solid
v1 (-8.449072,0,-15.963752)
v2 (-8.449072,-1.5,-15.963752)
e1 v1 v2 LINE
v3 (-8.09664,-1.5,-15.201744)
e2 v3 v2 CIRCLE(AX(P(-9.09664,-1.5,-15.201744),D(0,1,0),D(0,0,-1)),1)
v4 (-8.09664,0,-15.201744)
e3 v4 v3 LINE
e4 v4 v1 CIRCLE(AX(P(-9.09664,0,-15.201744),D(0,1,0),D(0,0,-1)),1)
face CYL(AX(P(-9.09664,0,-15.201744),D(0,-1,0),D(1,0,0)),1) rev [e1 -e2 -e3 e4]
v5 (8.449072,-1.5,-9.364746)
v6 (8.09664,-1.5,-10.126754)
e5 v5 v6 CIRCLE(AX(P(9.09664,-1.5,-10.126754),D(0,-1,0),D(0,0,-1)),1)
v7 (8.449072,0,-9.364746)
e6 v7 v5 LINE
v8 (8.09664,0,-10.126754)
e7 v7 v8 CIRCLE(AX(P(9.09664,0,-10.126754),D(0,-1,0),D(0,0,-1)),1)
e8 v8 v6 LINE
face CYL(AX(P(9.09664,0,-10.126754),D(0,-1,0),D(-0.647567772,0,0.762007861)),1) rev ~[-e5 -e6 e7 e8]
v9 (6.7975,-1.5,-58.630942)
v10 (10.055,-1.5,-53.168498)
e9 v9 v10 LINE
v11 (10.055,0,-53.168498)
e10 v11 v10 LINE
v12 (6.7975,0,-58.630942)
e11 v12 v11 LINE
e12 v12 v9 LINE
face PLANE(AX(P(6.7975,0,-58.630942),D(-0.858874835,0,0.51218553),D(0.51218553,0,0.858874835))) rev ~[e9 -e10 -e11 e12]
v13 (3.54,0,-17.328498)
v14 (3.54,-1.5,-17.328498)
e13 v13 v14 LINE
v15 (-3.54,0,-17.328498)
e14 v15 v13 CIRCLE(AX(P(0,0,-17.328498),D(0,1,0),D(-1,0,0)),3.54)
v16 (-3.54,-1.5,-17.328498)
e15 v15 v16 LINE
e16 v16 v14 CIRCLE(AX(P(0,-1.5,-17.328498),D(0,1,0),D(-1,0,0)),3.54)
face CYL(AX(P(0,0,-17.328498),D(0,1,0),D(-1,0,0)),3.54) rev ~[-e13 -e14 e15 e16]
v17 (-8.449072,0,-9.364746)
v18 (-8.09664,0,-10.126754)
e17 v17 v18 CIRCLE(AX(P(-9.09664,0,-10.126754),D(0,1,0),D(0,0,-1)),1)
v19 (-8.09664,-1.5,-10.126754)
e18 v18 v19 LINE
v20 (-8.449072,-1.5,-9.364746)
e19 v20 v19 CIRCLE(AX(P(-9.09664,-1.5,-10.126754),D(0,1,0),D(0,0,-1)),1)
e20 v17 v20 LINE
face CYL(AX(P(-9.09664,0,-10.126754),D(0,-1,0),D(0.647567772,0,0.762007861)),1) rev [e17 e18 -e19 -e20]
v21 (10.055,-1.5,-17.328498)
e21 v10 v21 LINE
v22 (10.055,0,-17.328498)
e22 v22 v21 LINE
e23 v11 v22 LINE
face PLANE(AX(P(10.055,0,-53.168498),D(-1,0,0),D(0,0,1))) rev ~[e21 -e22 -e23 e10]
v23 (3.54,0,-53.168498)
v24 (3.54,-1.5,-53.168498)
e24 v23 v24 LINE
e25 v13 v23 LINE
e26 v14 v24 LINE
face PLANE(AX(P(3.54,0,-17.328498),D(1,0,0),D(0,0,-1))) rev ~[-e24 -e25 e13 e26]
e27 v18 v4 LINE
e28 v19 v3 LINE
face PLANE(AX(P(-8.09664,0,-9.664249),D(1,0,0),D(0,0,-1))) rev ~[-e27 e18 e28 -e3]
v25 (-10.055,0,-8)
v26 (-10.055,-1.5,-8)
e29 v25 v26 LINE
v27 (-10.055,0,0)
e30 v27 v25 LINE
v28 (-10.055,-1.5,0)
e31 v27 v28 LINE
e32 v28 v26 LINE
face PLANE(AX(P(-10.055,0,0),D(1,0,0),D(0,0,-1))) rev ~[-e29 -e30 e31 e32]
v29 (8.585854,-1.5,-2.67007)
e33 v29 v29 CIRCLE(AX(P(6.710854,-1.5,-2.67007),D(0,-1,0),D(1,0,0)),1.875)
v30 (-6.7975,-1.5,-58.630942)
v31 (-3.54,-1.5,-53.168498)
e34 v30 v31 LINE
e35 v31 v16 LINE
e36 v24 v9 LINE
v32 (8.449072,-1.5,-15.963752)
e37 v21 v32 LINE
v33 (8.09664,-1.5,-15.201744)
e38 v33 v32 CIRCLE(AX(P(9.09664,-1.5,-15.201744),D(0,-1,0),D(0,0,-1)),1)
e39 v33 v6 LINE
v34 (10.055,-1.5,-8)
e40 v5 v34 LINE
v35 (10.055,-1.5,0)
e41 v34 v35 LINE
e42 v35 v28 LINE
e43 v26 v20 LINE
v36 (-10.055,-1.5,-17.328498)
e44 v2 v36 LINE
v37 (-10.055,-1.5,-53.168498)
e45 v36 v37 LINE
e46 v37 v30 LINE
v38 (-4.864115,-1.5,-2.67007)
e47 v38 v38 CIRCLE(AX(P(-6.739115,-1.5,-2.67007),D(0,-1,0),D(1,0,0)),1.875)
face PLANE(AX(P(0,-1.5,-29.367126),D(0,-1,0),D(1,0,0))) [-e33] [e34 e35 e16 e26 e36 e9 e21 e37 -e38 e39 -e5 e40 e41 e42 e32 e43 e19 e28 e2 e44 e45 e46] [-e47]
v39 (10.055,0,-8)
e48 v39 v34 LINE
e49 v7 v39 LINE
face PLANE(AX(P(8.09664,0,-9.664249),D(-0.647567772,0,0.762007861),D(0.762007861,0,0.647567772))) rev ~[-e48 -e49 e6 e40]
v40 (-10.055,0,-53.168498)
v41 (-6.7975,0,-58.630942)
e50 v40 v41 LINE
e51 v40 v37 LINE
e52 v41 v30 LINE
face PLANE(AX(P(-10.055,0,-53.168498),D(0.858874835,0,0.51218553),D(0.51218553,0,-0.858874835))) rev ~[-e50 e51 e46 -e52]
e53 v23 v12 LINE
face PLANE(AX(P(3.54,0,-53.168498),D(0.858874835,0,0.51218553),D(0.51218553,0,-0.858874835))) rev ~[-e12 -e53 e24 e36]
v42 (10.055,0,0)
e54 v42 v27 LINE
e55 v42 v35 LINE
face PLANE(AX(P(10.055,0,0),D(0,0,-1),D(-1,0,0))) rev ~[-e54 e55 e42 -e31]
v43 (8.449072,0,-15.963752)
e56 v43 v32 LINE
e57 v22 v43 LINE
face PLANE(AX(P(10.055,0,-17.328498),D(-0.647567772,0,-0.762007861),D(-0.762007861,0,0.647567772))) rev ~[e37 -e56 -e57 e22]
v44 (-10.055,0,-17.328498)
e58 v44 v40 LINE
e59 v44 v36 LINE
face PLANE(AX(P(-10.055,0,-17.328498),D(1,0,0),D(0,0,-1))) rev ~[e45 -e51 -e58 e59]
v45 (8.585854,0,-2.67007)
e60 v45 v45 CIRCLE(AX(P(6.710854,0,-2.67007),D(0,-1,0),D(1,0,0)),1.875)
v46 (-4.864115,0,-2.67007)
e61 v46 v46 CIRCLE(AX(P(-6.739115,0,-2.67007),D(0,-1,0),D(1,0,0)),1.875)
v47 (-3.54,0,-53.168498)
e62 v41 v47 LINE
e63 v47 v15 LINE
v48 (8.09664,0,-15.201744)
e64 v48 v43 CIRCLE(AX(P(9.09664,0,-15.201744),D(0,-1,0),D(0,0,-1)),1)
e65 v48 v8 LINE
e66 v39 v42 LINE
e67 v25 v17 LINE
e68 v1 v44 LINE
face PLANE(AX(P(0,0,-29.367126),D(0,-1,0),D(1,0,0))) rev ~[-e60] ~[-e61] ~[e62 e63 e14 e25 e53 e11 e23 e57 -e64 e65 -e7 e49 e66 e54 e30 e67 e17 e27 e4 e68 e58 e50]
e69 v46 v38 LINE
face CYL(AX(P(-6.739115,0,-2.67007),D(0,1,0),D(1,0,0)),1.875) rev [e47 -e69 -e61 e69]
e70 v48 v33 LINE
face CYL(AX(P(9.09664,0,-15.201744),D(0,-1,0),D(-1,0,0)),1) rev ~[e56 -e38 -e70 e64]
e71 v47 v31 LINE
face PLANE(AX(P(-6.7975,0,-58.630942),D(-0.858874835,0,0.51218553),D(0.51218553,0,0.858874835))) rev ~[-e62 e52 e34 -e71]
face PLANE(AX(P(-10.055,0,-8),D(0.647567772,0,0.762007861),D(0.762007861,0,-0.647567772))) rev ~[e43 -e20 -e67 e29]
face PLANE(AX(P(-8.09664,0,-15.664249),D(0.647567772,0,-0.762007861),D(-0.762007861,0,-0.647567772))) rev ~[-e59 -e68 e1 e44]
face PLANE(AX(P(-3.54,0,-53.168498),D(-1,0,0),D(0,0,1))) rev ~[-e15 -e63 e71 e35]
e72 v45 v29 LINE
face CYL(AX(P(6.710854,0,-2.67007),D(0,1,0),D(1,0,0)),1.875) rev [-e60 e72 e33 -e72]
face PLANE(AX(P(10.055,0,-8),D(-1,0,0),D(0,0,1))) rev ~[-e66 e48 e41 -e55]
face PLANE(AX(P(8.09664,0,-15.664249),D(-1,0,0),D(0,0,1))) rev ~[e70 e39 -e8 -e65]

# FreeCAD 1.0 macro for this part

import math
import FreeCAD as App
import Part
import Sketcher
from FreeCAD import Vector
Q = App.Units.Quantity


def edges_at(feature, points):
    """Names of the edges that pass closest to the given points."""
    edges = feature.Shape.Edges
    near = lambda p: min(range(len(edges)), key=lambda i: edges[i].distToShape(Part.Vertex(*p))[0])
    return sorted({f"Edge{near(p) + 1}" for p in points})

doc = App.newDocument("Part")
params = doc.addObject("Spreadsheet::Sheet", "Params")
for row, (alias, value) in enumerate([
    ("sketch1_diameter", "3.75 mm"),
    ("sketch1_height", "8 mm"),
    ("sketch1_height2", "6 mm"),
    ("sketch1_radius", "3.54 mm"),
    ("sketch1_width", "20.11 mm"),
    ("pad1_length", "1.5 mm"),
    ("fillet_radius", "1 mm"),
], start=1):
    params.set(f"A{row}", alias)
    params.set(f"B{row}", "=" + value)
    params.setAlias(f"B{row}", alias)

body = doc.addObject("PartDesign::Body", "Body")

# Sketch on XZ plane
sketch1 = doc.addObject("Sketcher::SketchObject", "Sketch")
body.addObject(sketch1)
sketch1.AttachmentSupport = (doc.XZ_Plane, [""])
sketch1.MapMode = "FlatFace"
sketch1.addGeometry([
    Part.LineSegment(Vector(10.1, 0, 0), Vector(-10.1, 0, 0)),  # 0
    Part.LineSegment(Vector(-10.1, 0, 0), Vector(-10.1, -8, 0)),  # 1
    Part.LineSegment(Vector(-10.1, -8, 0), Vector(-8.1, -9.7, 0)),  # 2
    Part.LineSegment(Vector(-8.1, -9.7, 0), Vector(-8.1, -15.7, 0)),  # 3
    Part.LineSegment(Vector(-8.1, -15.7, 0), Vector(-10.1, -17.3, 0)),  # 4
    Part.LineSegment(Vector(-10.1, -17.3, 0), Vector(-10.1, -53.2, 0)),  # 5
    Part.LineSegment(Vector(-10.1, -53.2, 0), Vector(-6.8, -58.6, 0)),  # 6
    Part.LineSegment(Vector(-6.8, -58.6, 0), Vector(-3.5, -53.2, 0)),  # 7
    Part.LineSegment(Vector(-3.5, -53.2, 0), Vector(-3.5, -17.3, 0)),  # 8
    Part.ArcOfCircle(Part.Circle(Vector(0, -17.3, 0), Vector(0, 0, 1), 3.5), math.radians(0), math.radians(180)),  # 9
    Part.LineSegment(Vector(3.5, -17.3, 0), Vector(3.5, -53.2, 0)),  # 10
    Part.LineSegment(Vector(3.5, -53.2, 0), Vector(6.8, -58.6, 0)),  # 11
    Part.LineSegment(Vector(6.8, -58.6, 0), Vector(10.1, -53.2, 0)),  # 12
    Part.LineSegment(Vector(10.1, -53.2, 0), Vector(10.1, -17.3, 0)),  # 13
    Part.LineSegment(Vector(10.1, -17.3, 0), Vector(8.1, -15.7, 0)),  # 14
    Part.LineSegment(Vector(8.1, -15.7, 0), Vector(8.1, -9.7, 0)),  # 15
    Part.LineSegment(Vector(8.1, -9.7, 0), Vector(10.1, -8, 0)),  # 16
    Part.LineSegment(Vector(10.1, -8, 0), Vector(10.1, 0, 0)),  # 17
    Part.Circle(Vector(-6.7, -2.7, 0), Vector(0, 0, 1), 1.9),  # 18
    Part.Circle(Vector(6.7, -2.7, 0), Vector(0, 0, 1), 1.9),  # 19
], False)
sketch1.addConstraint([
    Sketcher.Constraint("Coincident", 0, 2, 1, 1),
    Sketcher.Constraint("Coincident", 1, 2, 2, 1),
    Sketcher.Constraint("Coincident", 2, 2, 3, 1),
    Sketcher.Constraint("Coincident", 3, 2, 4, 1),
    Sketcher.Constraint("Coincident", 4, 2, 5, 1),
    Sketcher.Constraint("Coincident", 5, 2, 6, 1),
    Sketcher.Constraint("Coincident", 6, 2, 7, 1),
    Sketcher.Constraint("Coincident", 7, 2, 8, 1),
    Sketcher.Constraint("Tangent", 8, 2, 9, 2),
    Sketcher.Constraint("Tangent", 9, 1, 10, 1),
    Sketcher.Constraint("Coincident", 10, 2, 11, 1),
    Sketcher.Constraint("Coincident", 11, 2, 12, 1),
    Sketcher.Constraint("Coincident", 12, 2, 13, 1),
    Sketcher.Constraint("Coincident", 13, 2, 14, 1),
    Sketcher.Constraint("Coincident", 14, 2, 15, 1),
    Sketcher.Constraint("Coincident", 15, 2, 16, 1),
    Sketcher.Constraint("Coincident", 16, 2, 17, 1),
    Sketcher.Constraint("Coincident", 17, 2, 0, 1),
    Sketcher.Constraint("Horizontal", 0),
    Sketcher.Constraint("Vertical", 1),
    Sketcher.Constraint("Vertical", 3),
    Sketcher.Constraint("Vertical", 5),
    Sketcher.Constraint("Vertical", 8),
    Sketcher.Constraint("Vertical", 10),
    Sketcher.Constraint("Vertical", 13),
    Sketcher.Constraint("Vertical", 15),
    Sketcher.Constraint("Vertical", 17),
    Sketcher.Constraint("Equal", 18, 19),
    Sketcher.Constraint("Symmetric", 0, 2, 17, 2, -1, 1),
    Sketcher.Constraint("Symmetric", 7, 2, 10, 2, -2),
    Sketcher.Constraint("Symmetric", 6, 2, 11, 2, -2),
    Sketcher.Constraint("Symmetric", 5, 2, 12, 2, -2),
    Sketcher.Constraint("Symmetric", 3, 2, 14, 2, -2),
    Sketcher.Constraint("Parallel", 6, 11),
    Sketcher.Constraint("Parallel", 2, 14),
    Sketcher.Constraint("Parallel", 4, 16),
    Sketcher.Constraint("Horizontal", 18, 3, 19, 3),
    Sketcher.Constraint("Horizontal", 9, 3, 4, 2),
    Sketcher.Constraint("Horizontal", 5, 2, 7, 2),
    Sketcher.Constraint("Horizontal", 9, 1, 13, 2),
    Sketcher.Constraint("Horizontal", 2, 2, 15, 2),
    Sketcher.Constraint("Vertical", 1, 2, 4, 2),
    Sketcher.Constraint("Diameter", 18, Q("3.75 mm")),
    Sketcher.Constraint("DistanceY", 1, 2, 1, 1, Q("8 mm")),
    Sketcher.Constraint("DistanceY", 3, 2, 3, 1, Q("6 mm")),
    Sketcher.Constraint("Radius", 9, Q("3.54 mm")),
    Sketcher.Constraint("DistanceX", 0, 2, 0, 1, Q("20.11 mm")),
    Sketcher.Constraint("DistanceY", 5, 2, 5, 1, Q("35.84 mm")),
    Sketcher.Constraint("Distance", 2, Q("2.57 mm")),
    Sketcher.Constraint("Distance", 6, Q("6.36 mm")),
    Sketcher.Constraint("DistanceY", 9, 3, -1, 1, Q("17.328498 mm")),
    Sketcher.Constraint("DistanceY", 18, 3, -1, 1, Q("2.67007 mm")),
    Sketcher.Constraint("DistanceX", 18, 3, 19, 3, Q("13.449969 mm")),
    Sketcher.Constraint("DistanceX", 18, 3, -1, 1, Q("6.739115 mm")),
])
sketch1.setExpression("Constraints[42]", "Params.sketch1_diameter")
sketch1.setExpression("Constraints[43]", "Params.sketch1_height")
sketch1.setExpression("Constraints[44]", "Params.sketch1_height2")
sketch1.setExpression("Constraints[45]", "Params.sketch1_radius")
sketch1.setExpression("Constraints[46]", "Params.sketch1_width")
pad1 = doc.addObject("PartDesign::Pad", "Pad")
body.addObject(pad1)
pad1.Profile = sketch1
pad1.setExpression("Length", "Params.pad1_length")
doc.recompute()

fillet = doc.addObject("PartDesign::Fillet", "Fillet")
body.addObject(fillet)
fillet.Base = (pad1, edges_at(pad1, [
    (-8.097, -0.75, -9.664),
    (-8.097, -0.75, -15.664),
    (8.097, -0.75, -9.664),
    (8.097, -0.75, -15.664),
]))
fillet.setExpression("Radius", "Params.fillet_radius")

doc.recompute()
